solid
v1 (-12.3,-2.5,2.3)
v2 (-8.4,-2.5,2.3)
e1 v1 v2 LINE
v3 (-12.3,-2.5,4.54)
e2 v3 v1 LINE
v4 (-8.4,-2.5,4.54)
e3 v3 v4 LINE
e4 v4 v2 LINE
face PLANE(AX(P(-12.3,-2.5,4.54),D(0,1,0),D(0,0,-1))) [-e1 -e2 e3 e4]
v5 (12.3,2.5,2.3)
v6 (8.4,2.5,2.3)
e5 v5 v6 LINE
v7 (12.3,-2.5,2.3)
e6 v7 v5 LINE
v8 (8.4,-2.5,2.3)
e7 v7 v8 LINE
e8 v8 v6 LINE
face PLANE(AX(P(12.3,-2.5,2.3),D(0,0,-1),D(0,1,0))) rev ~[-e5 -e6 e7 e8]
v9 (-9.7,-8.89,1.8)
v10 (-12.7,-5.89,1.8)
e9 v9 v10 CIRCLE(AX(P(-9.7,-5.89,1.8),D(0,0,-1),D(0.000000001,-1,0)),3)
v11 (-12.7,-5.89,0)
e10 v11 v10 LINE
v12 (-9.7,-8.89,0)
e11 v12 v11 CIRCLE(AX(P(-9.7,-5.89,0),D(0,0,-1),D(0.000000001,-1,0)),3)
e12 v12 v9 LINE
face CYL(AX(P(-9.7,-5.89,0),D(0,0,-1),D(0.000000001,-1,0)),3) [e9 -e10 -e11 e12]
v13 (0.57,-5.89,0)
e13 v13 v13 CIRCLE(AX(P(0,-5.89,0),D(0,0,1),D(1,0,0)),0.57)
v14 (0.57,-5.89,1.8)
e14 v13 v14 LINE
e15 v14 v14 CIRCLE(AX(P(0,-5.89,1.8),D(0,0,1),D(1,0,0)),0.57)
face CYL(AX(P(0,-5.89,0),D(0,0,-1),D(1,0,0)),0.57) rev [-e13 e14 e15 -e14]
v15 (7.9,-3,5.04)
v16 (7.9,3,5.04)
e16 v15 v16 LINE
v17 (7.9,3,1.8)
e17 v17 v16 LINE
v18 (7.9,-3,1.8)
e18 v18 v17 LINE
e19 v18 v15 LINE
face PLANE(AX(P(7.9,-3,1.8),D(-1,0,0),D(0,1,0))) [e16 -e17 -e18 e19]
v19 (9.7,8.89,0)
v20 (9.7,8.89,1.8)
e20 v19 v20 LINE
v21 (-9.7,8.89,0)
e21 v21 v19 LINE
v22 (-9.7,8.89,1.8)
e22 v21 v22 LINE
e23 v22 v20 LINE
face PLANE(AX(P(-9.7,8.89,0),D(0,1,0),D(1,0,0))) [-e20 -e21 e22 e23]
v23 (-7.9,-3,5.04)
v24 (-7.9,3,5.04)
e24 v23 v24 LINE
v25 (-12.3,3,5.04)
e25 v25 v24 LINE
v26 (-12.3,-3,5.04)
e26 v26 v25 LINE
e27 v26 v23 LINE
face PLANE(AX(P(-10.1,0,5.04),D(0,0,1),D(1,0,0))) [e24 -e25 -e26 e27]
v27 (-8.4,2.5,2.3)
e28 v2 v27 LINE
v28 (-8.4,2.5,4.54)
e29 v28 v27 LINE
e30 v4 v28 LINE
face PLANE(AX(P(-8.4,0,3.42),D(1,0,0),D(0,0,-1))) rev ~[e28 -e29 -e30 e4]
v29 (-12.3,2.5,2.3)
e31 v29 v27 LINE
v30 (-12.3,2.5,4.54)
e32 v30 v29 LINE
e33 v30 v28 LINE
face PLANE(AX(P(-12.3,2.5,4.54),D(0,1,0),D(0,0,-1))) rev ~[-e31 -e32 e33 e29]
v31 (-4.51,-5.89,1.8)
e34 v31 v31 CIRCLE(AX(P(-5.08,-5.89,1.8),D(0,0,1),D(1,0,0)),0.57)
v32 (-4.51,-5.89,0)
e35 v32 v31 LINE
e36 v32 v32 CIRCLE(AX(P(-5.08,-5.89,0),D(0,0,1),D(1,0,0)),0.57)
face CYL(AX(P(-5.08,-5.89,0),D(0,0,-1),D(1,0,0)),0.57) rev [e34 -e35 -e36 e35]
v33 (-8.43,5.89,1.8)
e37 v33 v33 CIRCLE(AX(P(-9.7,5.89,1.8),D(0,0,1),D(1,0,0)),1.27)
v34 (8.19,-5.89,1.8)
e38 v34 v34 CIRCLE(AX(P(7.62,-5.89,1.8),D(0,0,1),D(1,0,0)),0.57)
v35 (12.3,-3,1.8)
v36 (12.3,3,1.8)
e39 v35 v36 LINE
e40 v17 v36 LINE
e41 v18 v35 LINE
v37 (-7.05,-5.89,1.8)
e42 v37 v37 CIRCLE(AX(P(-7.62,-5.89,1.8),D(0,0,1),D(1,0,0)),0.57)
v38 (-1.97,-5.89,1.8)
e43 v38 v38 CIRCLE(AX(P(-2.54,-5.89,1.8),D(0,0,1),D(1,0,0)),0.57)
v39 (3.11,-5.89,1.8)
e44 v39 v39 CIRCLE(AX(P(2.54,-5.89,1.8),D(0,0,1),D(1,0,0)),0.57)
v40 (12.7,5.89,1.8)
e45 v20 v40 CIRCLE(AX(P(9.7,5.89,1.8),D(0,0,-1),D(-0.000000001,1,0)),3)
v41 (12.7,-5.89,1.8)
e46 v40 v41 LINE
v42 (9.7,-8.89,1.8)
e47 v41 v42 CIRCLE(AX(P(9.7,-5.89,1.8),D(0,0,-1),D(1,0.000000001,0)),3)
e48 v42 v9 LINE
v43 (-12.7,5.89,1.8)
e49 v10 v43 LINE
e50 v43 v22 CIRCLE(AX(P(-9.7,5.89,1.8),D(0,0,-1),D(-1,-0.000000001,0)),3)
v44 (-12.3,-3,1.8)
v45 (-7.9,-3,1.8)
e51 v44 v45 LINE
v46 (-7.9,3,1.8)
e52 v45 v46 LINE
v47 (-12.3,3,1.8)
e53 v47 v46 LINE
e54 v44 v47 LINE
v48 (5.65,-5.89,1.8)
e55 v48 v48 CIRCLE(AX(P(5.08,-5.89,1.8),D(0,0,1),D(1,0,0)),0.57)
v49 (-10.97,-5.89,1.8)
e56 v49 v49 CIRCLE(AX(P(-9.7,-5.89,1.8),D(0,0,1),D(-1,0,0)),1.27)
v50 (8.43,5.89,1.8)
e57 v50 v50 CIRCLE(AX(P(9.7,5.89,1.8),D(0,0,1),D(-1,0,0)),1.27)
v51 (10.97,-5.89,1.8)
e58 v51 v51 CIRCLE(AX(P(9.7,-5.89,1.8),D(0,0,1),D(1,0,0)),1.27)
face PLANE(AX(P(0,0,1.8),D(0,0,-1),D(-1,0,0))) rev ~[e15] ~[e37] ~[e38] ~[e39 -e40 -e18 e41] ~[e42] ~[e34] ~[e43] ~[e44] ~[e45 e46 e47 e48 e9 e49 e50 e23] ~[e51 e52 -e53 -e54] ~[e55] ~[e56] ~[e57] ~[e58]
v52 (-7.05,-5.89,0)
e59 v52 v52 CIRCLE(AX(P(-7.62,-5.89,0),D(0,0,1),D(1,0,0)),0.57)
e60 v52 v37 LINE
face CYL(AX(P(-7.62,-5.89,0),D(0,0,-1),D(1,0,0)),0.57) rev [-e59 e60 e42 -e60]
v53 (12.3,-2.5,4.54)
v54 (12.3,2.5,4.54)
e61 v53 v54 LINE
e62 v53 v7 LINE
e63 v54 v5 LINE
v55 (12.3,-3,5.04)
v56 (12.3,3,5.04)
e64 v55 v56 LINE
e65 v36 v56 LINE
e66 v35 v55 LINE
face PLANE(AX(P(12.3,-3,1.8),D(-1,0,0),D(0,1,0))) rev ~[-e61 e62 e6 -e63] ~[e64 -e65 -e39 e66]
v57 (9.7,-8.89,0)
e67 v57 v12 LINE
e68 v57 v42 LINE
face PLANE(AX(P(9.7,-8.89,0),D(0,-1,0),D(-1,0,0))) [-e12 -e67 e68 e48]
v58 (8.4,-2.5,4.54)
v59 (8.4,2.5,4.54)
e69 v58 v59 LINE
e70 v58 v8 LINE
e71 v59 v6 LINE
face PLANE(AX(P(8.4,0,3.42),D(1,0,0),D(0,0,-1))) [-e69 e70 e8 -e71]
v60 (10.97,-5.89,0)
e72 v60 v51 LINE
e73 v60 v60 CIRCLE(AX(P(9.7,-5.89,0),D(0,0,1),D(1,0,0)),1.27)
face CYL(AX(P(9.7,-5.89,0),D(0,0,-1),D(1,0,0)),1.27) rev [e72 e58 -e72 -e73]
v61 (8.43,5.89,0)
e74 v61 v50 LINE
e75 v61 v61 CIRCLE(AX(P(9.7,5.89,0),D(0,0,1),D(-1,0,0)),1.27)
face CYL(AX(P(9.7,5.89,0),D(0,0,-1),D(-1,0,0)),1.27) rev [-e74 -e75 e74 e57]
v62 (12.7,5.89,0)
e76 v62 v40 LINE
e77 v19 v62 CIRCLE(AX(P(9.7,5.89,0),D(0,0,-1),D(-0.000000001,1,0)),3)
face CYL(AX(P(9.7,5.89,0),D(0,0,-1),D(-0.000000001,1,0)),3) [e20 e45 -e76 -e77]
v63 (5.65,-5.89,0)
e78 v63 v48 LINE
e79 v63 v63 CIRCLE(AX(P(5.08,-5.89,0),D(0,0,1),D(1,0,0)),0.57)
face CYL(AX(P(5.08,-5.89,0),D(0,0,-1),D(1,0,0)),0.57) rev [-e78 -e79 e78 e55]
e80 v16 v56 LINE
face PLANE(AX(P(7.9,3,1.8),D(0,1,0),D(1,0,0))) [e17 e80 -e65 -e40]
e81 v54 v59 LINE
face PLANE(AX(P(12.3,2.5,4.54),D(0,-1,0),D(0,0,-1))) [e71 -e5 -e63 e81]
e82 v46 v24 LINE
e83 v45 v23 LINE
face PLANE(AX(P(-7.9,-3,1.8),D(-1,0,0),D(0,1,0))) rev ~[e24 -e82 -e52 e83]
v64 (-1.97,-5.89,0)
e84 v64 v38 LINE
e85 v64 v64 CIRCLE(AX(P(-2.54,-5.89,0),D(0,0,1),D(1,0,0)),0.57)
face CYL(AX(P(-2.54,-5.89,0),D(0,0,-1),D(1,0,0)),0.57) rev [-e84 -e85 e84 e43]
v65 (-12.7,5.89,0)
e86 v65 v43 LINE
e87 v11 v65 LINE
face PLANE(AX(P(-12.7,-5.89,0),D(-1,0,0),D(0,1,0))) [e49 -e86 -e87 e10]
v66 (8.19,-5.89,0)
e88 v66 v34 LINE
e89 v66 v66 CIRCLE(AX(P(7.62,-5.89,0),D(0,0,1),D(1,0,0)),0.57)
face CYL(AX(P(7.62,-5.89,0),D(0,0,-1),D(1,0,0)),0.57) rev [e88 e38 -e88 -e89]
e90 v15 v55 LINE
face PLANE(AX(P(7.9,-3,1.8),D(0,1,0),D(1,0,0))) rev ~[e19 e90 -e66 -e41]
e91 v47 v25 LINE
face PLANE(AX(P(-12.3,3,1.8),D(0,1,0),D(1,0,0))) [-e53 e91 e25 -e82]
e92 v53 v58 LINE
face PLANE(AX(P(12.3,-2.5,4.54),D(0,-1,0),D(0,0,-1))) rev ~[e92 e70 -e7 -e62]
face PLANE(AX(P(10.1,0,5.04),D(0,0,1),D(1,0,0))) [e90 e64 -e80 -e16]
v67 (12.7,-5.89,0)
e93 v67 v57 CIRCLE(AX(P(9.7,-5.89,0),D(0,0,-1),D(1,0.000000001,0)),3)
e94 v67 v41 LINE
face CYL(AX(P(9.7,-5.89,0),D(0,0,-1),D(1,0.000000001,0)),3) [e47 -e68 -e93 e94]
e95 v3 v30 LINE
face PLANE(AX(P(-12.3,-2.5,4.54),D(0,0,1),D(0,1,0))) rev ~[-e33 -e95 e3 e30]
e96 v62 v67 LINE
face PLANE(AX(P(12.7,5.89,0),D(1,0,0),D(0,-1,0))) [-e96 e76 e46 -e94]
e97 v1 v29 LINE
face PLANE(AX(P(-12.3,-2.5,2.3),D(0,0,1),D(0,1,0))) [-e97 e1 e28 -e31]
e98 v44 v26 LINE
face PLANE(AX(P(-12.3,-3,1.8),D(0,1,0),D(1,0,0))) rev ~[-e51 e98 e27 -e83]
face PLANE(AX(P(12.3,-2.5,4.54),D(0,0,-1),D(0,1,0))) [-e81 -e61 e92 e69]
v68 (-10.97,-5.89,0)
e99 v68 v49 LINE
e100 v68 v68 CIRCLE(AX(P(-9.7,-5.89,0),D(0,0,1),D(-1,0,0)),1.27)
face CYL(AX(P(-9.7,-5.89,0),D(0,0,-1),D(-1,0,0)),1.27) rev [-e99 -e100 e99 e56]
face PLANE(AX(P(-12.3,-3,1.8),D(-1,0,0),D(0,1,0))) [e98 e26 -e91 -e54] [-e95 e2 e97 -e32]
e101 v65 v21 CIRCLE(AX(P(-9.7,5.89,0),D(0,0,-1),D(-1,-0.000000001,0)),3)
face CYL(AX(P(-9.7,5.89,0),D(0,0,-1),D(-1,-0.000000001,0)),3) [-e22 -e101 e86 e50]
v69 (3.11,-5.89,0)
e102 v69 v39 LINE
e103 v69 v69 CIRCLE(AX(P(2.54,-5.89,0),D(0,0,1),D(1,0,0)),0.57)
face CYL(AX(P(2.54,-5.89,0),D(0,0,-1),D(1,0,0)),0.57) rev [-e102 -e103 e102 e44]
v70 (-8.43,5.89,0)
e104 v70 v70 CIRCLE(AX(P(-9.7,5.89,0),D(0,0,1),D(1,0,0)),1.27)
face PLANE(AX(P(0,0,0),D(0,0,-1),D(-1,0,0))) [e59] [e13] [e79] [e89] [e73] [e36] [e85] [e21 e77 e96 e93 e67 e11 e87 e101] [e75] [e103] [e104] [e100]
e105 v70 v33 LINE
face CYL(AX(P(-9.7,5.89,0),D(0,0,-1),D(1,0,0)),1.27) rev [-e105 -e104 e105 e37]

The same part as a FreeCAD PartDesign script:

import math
import FreeCAD as App
import Part
import Sketcher
from FreeCAD import Vector

doc = App.newDocument("Part")
body = doc.addObject("PartDesign::Body", "Body")

# Sketch on XY plane
sketch1 = body.newObject("Sketcher::SketchObject", "Sketch")
sketch1.AttachmentSupport = (doc.getObject("XY_Plane"), [""])
sketch1.MapMode = "FlatFace"
sketch1.addGeometry([
    Part.LineSegment(Vector(-9.7, -8.9, 0), Vector(9.7, -8.9, 0)),  # 0
    Part.ArcOfCircle(Part.Circle(Vector(9.7, -5.9, 0), Vector(0, 0, 1), 3), math.radians(-90), math.radians(0)),  # 1
    Part.LineSegment(Vector(12.7, -5.9, 0), Vector(12.7, 5.9, 0)),  # 2
    Part.ArcOfCircle(Part.Circle(Vector(9.7, 5.9, 0), Vector(0, 0, 1), 3), math.radians(0), math.radians(90)),  # 3
    Part.LineSegment(Vector(9.7, 8.9, 0), Vector(-9.7, 8.9, 0)),  # 4
    Part.ArcOfCircle(Part.Circle(Vector(-9.7, 5.9, 0), Vector(0, 0, 1), 3), math.radians(90), math.radians(180)),  # 5
    Part.LineSegment(Vector(-12.7, 5.9, 0), Vector(-12.7, -5.9, 0)),  # 6
    Part.ArcOfCircle(Part.Circle(Vector(-9.7, -5.9, 0), Vector(0, 0, 1), 3), math.radians(180), math.radians(270)),  # 7
    Part.Circle(Vector(9.7, -5.9, 0), Vector(0, 0, 1), 1.3),  # 8
    Part.Circle(Vector(7.6, -5.9, 0), Vector(0, 0, 1), 0.6),  # 9
    Part.Circle(Vector(5.1, -5.9, 0), Vector(0, 0, 1), 0.6),  # 10
    Part.Circle(Vector(2.5, -5.9, 0), Vector(0, 0, 1), 0.6),  # 11
    Part.Circle(Vector(0, -5.9, 0), Vector(0, 0, 1), 0.6),  # 12
    Part.Circle(Vector(-2.5, -5.9, 0), Vector(0, 0, 1), 0.6),  # 13
    Part.Circle(Vector(-5.1, -5.9, 0), Vector(0, 0, 1), 0.6),  # 14
    Part.Circle(Vector(-7.6, -5.9, 0), Vector(0, 0, 1), 0.6),  # 15
    Part.Circle(Vector(-9.7, -5.9, 0), Vector(0, 0, 1), 1.3),  # 16
    Part.Circle(Vector(9.7, 5.9, 0), Vector(0, 0, 1), 1.3),  # 17
    Part.Circle(Vector(-9.7, 5.9, 0), Vector(0, 0, 1), 1.3),  # 18
], False)
sketch1.addConstraint([
    Sketcher.Constraint("Tangent", 0, 2, 1, 1),
    Sketcher.Constraint("Tangent", 1, 2, 2, 1),
    Sketcher.Constraint("Tangent", 2, 2, 3, 1),
    Sketcher.Constraint("Tangent", 3, 2, 4, 1),
    Sketcher.Constraint("Tangent", 4, 2, 5, 1),
    Sketcher.Constraint("Tangent", 5, 2, 6, 1),
    Sketcher.Constraint("Tangent", 6, 2, 7, 1),
    Sketcher.Constraint("Tangent", 7, 2, 0, 1),
    Sketcher.Constraint("Horizontal", 0),
    Sketcher.Constraint("Vertical", 2),
    Sketcher.Constraint("Horizontal", 4),
    Sketcher.Constraint("Vertical", 6),
    Sketcher.Constraint("Coincident", 8, 3, 1, 3),
    Sketcher.Constraint("Coincident", 16, 3, 7, 3),
    Sketcher.Constraint("Coincident", 17, 3, 3, 3),
    Sketcher.Constraint("Coincident", 18, 3, 5, 3),
    Sketcher.Constraint("Equal", 1, 3),
    Sketcher.Constraint("Equal", 3, 5),
    Sketcher.Constraint("Equal", 5, 7),
    Sketcher.Constraint("Equal", 9, 10),
    Sketcher.Constraint("Equal", 10, 11),
    Sketcher.Constraint("Equal", 11, 12),
    Sketcher.Constraint("Equal", 12, 13),
    Sketcher.Constraint("Equal", 13, 14),
    Sketcher.Constraint("Equal", 14, 15),
    Sketcher.Constraint("Equal", 8, 16),
    Sketcher.Constraint("Equal", 16, 17),
    Sketcher.Constraint("Equal", 17, 18),
    Sketcher.Constraint("Symmetric", 1, 3, 5, 3, -1, 1),
    Sketcher.Constraint("Symmetric", 11, 3, 13, 3, -2),
    Sketcher.Constraint("Symmetric", 10, 3, 14, 3, -2),
    Sketcher.Constraint("Symmetric", 9, 3, 15, 3, -2),
    Sketcher.Constraint("PointOnObject", 12, 3, -2),
    Sketcher.Constraint("Horizontal", 8, 3, 9, 3),
    Sketcher.Constraint("Horizontal", 9, 3, 10, 3),
    Sketcher.Constraint("Horizontal", 10, 3, 11, 3),
    Sketcher.Constraint("Horizontal", 11, 3, 12, 3),
    Sketcher.Constraint("Radius", 1, 3.0),
    Sketcher.Constraint("Diameter", 8, 2.54),
    Sketcher.Constraint("Diameter", 9, 1.14),
    Sketcher.Constraint("DistanceX", 0, 1, 0, 2, 19.4),
    Sketcher.Constraint("DistanceY", 2, 1, 2, 2, 11.78),
    Sketcher.Constraint("DistanceX", -1, 1, 9, 3, 7.62),
    Sketcher.Constraint("DistanceX", -1, 1, 10, 3, 5.08),
    Sketcher.Constraint("DistanceX", -1, 1, 11, 3, 2.54),
])
pad1 = body.newObject("PartDesign::Pad", "Pad")
pad1.Profile = sketch1
pad1.Length = 1.8

# Sketch on XY plane
sketch2 = body.newObject("Sketcher::SketchObject", "Sketch001")
sketch2.AttachmentSupport = (doc.getObject("XY_Plane"), [""])
sketch2.MapMode = "FlatFace"
sketch2.AttachmentOffset = App.Placement(Vector(0, 0, 1.8), App.Rotation())
sketch2.addGeometry([
    Part.LineSegment(Vector(-12.3, 3, 0), Vector(-12.3, -3, 0)),  # 0
    Part.LineSegment(Vector(-12.3, -3, 0), Vector(-7.9, -3, 0)),  # 1
    Part.LineSegment(Vector(-7.9, -3, 0), Vector(-7.9, 3, 0)),  # 2
    Part.LineSegment(Vector(-7.9, 3, 0), Vector(-12.3, 3, 0)),  # 3
    Part.LineSegment(Vector(7.9, 3, 0), Vector(7.9, -3, 0)),  # 4
    Part.LineSegment(Vector(7.9, -3, 0), Vector(12.3, -3, 0)),  # 5
    Part.LineSegment(Vector(12.3, -3, 0), Vector(12.3, 3, 0)),  # 6
    Part.LineSegment(Vector(12.3, 3, 0), Vector(7.9, 3, 0)),  # 7
], False)
sketch2.addConstraint([
    Sketcher.Constraint("Coincident", 0, 2, 1, 1),
    Sketcher.Constraint("Coincident", 1, 2, 2, 1),
    Sketcher.Constraint("Coincident", 2, 2, 3, 1),
    Sketcher.Constraint("Coincident", 3, 2, 0, 1),
    Sketcher.Constraint("Coincident", 4, 2, 5, 1),
    Sketcher.Constraint("Coincident", 5, 2, 6, 1),
    Sketcher.Constraint("Coincident", 6, 2, 7, 1),
    Sketcher.Constraint("Coincident", 7, 2, 4, 1),
    Sketcher.Constraint("Vertical", 0),
    Sketcher.Constraint("Horizontal", 1),
    Sketcher.Constraint("Vertical", 2),
    Sketcher.Constraint("Horizontal", 3),
    Sketcher.Constraint("Vertical", 4),
    Sketcher.Constraint("Horizontal", 5),
    Sketcher.Constraint("Vertical", 6),
    Sketcher.Constraint("Horizontal", 7),
    Sketcher.Constraint("Symmetric", 2, 2, 4, 2, -1, 1),
    Sketcher.Constraint("Symmetric", 0, 2, 6, 2, -1, 1),
    Sketcher.Constraint("Horizontal", 1, 2, 4, 2),
    Sketcher.Constraint("DistanceY", 0, 2, 0, 1, 6.0),
    Sketcher.Constraint("DistanceX", 1, 1, 1, 2, 4.4),
    Sketcher.Constraint("DistanceX", 0, 2, -1, 1, 12.3),
])
pad2 = body.newObject("PartDesign::Pad", "Pad001")
pad2.Profile = sketch2
pad2.Length = 3.24

# Sketch on YZ plane
sketch3 = body.newObject("Sketcher::SketchObject", "Sketch002")
sketch3.AttachmentSupport = (doc.getObject("YZ_Plane"), [""])
sketch3.MapMode = "FlatFace"
sketch3.AttachmentOffset = App.Placement(Vector(0, 0, 12.3), App.Rotation())
sketch3.addGeometry([
    Part.LineSegment(Vector(2.5, 4.5, 0), Vector(-2.5, 4.5, 0)),
    Part.LineSegment(Vector(-2.5, 4.5, 0), Vector(-2.5, 2.3, 0)),
    Part.LineSegment(Vector(-2.5, 2.3, 0), Vector(2.5, 2.3, 0)),
    Part.LineSegment(Vector(2.5, 2.3, 0), Vector(2.5, 4.5, 0)),
], False)
sketch3.addConstraint([
    Sketcher.Constraint("Coincident", 0, 2, 1, 1),
    Sketcher.Constraint("Coincident", 1, 2, 2, 1),
    Sketcher.Constraint("Coincident", 2, 2, 3, 1),
    Sketcher.Constraint("Coincident", 3, 2, 0, 1),
    Sketcher.Constraint("Horizontal", 0),
    Sketcher.Constraint("Vertical", 1),
    Sketcher.Constraint("Horizontal", 2),
    Sketcher.Constraint("Vertical", 3),
    Sketcher.Constraint("DistanceX", 0, 2, 0, 1, 5.0),
    Sketcher.Constraint("DistanceY", 1, 2, 1, 1, 2.24),
    Sketcher.Constraint("DistanceX", 0, 2, -1, 1, 2.5),
    Sketcher.Constraint("DistanceY", -1, 1, 1, 2, 2.3),
])
pocket1 = body.newObject("PartDesign::Pocket", "Pocket")
pocket1.Profile = sketch3
pocket1.Length = 3.9

# Sketch on YZ plane
sketch4 = body.newObject("Sketcher::SketchObject", "Sketch003")
sketch4.AttachmentSupport = (doc.getObject("YZ_Plane"), [""])
sketch4.MapMode = "FlatFace"
sketch4.AttachmentOffset = App.Placement(Vector(0, 0, -12.3), App.Rotation())
sketch4.addGeometry([
    Part.LineSegment(Vector(2.5, 4.5, 0), Vector(-2.5, 4.5, 0)),
    Part.LineSegment(Vector(-2.5, 4.5, 0), Vector(-2.5, 2.3, 0)),
    Part.LineSegment(Vector(-2.5, 2.3, 0), Vector(2.5, 2.3, 0)),
    Part.LineSegment(Vector(2.5, 2.3, 0), Vector(2.5, 4.5, 0)),
], False)
sketch4.addConstraint([
    Sketcher.Constraint("Coincident", 0, 2, 1, 1),
    Sketcher.Constraint("Coincident", 1, 2, 2, 1),
    Sketcher.Constraint("Coincident", 2, 2, 3, 1),
    Sketcher.Constraint("Coincident", 3, 2, 0, 1),
    Sketcher.Constraint("Horizontal", 0),
    Sketcher.Constraint("Vertical", 1),
    Sketcher.Constraint("Horizontal", 2),
    Sketcher.Constraint("Vertical", 3),
    Sketcher.Constraint("DistanceX", 0, 2, 0, 1, 5.0),
    Sketcher.Constraint("DistanceY", 1, 2, 1, 1, 2.24),
    Sketcher.Constraint("DistanceX", 0, 2, -1, 1, 2.5),
    Sketcher.Constraint("DistanceY", -1, 1, 1, 2, 2.3),
])
pocket2 = body.newObject("PartDesign::Pocket", "Pocket001")
pocket2.Profile = sketch4
pocket2.Length = 3.9
pocket2.Reversed = True

doc.recompute()
